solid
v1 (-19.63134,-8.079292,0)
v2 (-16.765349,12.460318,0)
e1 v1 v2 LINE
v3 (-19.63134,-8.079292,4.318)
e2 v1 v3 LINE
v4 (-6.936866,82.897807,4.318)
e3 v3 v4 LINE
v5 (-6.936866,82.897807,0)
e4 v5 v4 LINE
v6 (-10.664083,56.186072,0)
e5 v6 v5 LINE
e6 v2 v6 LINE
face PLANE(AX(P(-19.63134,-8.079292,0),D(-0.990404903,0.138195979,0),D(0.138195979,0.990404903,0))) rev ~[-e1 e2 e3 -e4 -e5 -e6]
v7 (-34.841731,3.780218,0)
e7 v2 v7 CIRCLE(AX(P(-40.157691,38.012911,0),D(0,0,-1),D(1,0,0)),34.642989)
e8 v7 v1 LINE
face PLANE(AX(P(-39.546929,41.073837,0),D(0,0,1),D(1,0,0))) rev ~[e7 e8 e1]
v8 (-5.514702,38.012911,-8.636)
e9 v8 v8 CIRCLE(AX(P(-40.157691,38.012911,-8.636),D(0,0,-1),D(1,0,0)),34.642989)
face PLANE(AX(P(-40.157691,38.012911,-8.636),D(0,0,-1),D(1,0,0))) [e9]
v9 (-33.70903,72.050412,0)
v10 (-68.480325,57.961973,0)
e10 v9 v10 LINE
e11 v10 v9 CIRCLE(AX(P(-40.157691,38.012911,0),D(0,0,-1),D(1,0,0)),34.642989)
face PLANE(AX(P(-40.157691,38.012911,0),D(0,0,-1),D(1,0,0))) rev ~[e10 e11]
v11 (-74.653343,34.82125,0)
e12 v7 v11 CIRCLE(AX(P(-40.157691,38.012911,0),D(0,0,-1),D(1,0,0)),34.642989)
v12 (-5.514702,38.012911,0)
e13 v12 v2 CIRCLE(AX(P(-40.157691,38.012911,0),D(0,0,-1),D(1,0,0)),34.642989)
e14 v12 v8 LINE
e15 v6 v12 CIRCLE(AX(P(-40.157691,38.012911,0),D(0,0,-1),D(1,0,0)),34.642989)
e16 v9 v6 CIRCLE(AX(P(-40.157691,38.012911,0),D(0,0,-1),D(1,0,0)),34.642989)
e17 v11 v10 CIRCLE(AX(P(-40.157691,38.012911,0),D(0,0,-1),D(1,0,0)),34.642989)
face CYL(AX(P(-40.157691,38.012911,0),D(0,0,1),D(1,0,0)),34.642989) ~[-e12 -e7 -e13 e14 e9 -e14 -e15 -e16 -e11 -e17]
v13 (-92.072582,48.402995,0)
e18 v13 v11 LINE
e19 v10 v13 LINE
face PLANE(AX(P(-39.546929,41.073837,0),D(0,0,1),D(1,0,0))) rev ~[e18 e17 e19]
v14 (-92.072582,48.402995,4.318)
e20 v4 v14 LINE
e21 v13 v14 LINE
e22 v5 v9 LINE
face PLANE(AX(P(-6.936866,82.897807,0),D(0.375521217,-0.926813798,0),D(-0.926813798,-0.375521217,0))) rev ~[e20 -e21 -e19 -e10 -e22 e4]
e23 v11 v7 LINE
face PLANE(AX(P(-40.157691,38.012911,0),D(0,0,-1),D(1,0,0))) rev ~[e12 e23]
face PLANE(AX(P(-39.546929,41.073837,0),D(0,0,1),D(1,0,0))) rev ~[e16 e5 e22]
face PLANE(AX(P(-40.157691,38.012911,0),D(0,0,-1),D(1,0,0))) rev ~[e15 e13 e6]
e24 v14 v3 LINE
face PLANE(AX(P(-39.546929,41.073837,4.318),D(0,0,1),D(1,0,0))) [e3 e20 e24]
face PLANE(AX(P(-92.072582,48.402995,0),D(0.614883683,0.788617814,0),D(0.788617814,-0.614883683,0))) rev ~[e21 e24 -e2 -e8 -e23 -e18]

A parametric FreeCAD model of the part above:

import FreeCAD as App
import Part
import Sketcher
from FreeCAD import Vector
Q = App.Units.Quantity


def add_polygon(sketch, points):
    """Adds a closed chain of lines whose ends are joined by coincident constraints."""
    first, n = sketch.GeometryCount, len(points)
    for a, b in zip(points, points[1:] + points[:1]):
        sketch.addGeometry(Part.LineSegment(App.Vector(*a, 0), App.Vector(*b, 0)), False)
    for i in range(n):
        sketch.addConstraint(Sketcher.Constraint("Coincident", first + i, 2, first + (i + 1) % n, 1))

doc = App.newDocument("Part")
body = doc.addObject("PartDesign::Body", "Body")

sketch1 = body.newObject("Sketcher::SketchObject", "Sketch")
sketch1.AttachmentSupport = (doc.getObject("XY_Plane"), [""])
sketch1.MapMode = "FlatFace"
add_polygon(sketch1, [(-20, -8), (-7, 83), (-92, 48)])
sketch1.addConstraint([
    Sketcher.Constraint("Equal", 0, 1),
    Sketcher.Constraint("Equal", 1, 2),
    Sketcher.Constraint("DistanceX", 1, 2, 0, 2, Q("3.3517998 in")),
    Sketcher.Constraint("DistanceY", 2, 2, 0, 2, 90.977099),
    Sketcher.Constraint("DistanceX", 1, 2, -1, 1, 92.072582),
    Sketcher.Constraint("DistanceY", -1, 1, 0, 2, 82.897807),
])
pad1 = body.newObject("PartDesign::Pad", "Pad")
pad1.Profile = sketch1
pad1.Length = Q("0.17 in")

sketch2 = body.newObject("Sketcher::SketchObject", "Sketch001")
sketch2.AttachmentSupport = (doc.getObject("XY_Plane"), [""])
sketch2.MapMode = "FlatFace"
sketch2.addGeometry(Part.Circle(Vector(-40, 38, 0), Vector(0, 0, 1), 35), False)
sketch2.addConstraint([
    Sketcher.Constraint("Diameter", 0, 69.285978),
    Sketcher.Constraint("DistanceX", 0, 3, -1, 1, 40.157691),
    Sketcher.Constraint("DistanceY", -1, 1, 0, 3, 38.012911),
])
pad2 = body.newObject("PartDesign::Pad", "Pad001")
pad2.Profile = sketch2
pad2.Length = Q("0.34 in")
pad2.Reversed = True

doc.recompute()
